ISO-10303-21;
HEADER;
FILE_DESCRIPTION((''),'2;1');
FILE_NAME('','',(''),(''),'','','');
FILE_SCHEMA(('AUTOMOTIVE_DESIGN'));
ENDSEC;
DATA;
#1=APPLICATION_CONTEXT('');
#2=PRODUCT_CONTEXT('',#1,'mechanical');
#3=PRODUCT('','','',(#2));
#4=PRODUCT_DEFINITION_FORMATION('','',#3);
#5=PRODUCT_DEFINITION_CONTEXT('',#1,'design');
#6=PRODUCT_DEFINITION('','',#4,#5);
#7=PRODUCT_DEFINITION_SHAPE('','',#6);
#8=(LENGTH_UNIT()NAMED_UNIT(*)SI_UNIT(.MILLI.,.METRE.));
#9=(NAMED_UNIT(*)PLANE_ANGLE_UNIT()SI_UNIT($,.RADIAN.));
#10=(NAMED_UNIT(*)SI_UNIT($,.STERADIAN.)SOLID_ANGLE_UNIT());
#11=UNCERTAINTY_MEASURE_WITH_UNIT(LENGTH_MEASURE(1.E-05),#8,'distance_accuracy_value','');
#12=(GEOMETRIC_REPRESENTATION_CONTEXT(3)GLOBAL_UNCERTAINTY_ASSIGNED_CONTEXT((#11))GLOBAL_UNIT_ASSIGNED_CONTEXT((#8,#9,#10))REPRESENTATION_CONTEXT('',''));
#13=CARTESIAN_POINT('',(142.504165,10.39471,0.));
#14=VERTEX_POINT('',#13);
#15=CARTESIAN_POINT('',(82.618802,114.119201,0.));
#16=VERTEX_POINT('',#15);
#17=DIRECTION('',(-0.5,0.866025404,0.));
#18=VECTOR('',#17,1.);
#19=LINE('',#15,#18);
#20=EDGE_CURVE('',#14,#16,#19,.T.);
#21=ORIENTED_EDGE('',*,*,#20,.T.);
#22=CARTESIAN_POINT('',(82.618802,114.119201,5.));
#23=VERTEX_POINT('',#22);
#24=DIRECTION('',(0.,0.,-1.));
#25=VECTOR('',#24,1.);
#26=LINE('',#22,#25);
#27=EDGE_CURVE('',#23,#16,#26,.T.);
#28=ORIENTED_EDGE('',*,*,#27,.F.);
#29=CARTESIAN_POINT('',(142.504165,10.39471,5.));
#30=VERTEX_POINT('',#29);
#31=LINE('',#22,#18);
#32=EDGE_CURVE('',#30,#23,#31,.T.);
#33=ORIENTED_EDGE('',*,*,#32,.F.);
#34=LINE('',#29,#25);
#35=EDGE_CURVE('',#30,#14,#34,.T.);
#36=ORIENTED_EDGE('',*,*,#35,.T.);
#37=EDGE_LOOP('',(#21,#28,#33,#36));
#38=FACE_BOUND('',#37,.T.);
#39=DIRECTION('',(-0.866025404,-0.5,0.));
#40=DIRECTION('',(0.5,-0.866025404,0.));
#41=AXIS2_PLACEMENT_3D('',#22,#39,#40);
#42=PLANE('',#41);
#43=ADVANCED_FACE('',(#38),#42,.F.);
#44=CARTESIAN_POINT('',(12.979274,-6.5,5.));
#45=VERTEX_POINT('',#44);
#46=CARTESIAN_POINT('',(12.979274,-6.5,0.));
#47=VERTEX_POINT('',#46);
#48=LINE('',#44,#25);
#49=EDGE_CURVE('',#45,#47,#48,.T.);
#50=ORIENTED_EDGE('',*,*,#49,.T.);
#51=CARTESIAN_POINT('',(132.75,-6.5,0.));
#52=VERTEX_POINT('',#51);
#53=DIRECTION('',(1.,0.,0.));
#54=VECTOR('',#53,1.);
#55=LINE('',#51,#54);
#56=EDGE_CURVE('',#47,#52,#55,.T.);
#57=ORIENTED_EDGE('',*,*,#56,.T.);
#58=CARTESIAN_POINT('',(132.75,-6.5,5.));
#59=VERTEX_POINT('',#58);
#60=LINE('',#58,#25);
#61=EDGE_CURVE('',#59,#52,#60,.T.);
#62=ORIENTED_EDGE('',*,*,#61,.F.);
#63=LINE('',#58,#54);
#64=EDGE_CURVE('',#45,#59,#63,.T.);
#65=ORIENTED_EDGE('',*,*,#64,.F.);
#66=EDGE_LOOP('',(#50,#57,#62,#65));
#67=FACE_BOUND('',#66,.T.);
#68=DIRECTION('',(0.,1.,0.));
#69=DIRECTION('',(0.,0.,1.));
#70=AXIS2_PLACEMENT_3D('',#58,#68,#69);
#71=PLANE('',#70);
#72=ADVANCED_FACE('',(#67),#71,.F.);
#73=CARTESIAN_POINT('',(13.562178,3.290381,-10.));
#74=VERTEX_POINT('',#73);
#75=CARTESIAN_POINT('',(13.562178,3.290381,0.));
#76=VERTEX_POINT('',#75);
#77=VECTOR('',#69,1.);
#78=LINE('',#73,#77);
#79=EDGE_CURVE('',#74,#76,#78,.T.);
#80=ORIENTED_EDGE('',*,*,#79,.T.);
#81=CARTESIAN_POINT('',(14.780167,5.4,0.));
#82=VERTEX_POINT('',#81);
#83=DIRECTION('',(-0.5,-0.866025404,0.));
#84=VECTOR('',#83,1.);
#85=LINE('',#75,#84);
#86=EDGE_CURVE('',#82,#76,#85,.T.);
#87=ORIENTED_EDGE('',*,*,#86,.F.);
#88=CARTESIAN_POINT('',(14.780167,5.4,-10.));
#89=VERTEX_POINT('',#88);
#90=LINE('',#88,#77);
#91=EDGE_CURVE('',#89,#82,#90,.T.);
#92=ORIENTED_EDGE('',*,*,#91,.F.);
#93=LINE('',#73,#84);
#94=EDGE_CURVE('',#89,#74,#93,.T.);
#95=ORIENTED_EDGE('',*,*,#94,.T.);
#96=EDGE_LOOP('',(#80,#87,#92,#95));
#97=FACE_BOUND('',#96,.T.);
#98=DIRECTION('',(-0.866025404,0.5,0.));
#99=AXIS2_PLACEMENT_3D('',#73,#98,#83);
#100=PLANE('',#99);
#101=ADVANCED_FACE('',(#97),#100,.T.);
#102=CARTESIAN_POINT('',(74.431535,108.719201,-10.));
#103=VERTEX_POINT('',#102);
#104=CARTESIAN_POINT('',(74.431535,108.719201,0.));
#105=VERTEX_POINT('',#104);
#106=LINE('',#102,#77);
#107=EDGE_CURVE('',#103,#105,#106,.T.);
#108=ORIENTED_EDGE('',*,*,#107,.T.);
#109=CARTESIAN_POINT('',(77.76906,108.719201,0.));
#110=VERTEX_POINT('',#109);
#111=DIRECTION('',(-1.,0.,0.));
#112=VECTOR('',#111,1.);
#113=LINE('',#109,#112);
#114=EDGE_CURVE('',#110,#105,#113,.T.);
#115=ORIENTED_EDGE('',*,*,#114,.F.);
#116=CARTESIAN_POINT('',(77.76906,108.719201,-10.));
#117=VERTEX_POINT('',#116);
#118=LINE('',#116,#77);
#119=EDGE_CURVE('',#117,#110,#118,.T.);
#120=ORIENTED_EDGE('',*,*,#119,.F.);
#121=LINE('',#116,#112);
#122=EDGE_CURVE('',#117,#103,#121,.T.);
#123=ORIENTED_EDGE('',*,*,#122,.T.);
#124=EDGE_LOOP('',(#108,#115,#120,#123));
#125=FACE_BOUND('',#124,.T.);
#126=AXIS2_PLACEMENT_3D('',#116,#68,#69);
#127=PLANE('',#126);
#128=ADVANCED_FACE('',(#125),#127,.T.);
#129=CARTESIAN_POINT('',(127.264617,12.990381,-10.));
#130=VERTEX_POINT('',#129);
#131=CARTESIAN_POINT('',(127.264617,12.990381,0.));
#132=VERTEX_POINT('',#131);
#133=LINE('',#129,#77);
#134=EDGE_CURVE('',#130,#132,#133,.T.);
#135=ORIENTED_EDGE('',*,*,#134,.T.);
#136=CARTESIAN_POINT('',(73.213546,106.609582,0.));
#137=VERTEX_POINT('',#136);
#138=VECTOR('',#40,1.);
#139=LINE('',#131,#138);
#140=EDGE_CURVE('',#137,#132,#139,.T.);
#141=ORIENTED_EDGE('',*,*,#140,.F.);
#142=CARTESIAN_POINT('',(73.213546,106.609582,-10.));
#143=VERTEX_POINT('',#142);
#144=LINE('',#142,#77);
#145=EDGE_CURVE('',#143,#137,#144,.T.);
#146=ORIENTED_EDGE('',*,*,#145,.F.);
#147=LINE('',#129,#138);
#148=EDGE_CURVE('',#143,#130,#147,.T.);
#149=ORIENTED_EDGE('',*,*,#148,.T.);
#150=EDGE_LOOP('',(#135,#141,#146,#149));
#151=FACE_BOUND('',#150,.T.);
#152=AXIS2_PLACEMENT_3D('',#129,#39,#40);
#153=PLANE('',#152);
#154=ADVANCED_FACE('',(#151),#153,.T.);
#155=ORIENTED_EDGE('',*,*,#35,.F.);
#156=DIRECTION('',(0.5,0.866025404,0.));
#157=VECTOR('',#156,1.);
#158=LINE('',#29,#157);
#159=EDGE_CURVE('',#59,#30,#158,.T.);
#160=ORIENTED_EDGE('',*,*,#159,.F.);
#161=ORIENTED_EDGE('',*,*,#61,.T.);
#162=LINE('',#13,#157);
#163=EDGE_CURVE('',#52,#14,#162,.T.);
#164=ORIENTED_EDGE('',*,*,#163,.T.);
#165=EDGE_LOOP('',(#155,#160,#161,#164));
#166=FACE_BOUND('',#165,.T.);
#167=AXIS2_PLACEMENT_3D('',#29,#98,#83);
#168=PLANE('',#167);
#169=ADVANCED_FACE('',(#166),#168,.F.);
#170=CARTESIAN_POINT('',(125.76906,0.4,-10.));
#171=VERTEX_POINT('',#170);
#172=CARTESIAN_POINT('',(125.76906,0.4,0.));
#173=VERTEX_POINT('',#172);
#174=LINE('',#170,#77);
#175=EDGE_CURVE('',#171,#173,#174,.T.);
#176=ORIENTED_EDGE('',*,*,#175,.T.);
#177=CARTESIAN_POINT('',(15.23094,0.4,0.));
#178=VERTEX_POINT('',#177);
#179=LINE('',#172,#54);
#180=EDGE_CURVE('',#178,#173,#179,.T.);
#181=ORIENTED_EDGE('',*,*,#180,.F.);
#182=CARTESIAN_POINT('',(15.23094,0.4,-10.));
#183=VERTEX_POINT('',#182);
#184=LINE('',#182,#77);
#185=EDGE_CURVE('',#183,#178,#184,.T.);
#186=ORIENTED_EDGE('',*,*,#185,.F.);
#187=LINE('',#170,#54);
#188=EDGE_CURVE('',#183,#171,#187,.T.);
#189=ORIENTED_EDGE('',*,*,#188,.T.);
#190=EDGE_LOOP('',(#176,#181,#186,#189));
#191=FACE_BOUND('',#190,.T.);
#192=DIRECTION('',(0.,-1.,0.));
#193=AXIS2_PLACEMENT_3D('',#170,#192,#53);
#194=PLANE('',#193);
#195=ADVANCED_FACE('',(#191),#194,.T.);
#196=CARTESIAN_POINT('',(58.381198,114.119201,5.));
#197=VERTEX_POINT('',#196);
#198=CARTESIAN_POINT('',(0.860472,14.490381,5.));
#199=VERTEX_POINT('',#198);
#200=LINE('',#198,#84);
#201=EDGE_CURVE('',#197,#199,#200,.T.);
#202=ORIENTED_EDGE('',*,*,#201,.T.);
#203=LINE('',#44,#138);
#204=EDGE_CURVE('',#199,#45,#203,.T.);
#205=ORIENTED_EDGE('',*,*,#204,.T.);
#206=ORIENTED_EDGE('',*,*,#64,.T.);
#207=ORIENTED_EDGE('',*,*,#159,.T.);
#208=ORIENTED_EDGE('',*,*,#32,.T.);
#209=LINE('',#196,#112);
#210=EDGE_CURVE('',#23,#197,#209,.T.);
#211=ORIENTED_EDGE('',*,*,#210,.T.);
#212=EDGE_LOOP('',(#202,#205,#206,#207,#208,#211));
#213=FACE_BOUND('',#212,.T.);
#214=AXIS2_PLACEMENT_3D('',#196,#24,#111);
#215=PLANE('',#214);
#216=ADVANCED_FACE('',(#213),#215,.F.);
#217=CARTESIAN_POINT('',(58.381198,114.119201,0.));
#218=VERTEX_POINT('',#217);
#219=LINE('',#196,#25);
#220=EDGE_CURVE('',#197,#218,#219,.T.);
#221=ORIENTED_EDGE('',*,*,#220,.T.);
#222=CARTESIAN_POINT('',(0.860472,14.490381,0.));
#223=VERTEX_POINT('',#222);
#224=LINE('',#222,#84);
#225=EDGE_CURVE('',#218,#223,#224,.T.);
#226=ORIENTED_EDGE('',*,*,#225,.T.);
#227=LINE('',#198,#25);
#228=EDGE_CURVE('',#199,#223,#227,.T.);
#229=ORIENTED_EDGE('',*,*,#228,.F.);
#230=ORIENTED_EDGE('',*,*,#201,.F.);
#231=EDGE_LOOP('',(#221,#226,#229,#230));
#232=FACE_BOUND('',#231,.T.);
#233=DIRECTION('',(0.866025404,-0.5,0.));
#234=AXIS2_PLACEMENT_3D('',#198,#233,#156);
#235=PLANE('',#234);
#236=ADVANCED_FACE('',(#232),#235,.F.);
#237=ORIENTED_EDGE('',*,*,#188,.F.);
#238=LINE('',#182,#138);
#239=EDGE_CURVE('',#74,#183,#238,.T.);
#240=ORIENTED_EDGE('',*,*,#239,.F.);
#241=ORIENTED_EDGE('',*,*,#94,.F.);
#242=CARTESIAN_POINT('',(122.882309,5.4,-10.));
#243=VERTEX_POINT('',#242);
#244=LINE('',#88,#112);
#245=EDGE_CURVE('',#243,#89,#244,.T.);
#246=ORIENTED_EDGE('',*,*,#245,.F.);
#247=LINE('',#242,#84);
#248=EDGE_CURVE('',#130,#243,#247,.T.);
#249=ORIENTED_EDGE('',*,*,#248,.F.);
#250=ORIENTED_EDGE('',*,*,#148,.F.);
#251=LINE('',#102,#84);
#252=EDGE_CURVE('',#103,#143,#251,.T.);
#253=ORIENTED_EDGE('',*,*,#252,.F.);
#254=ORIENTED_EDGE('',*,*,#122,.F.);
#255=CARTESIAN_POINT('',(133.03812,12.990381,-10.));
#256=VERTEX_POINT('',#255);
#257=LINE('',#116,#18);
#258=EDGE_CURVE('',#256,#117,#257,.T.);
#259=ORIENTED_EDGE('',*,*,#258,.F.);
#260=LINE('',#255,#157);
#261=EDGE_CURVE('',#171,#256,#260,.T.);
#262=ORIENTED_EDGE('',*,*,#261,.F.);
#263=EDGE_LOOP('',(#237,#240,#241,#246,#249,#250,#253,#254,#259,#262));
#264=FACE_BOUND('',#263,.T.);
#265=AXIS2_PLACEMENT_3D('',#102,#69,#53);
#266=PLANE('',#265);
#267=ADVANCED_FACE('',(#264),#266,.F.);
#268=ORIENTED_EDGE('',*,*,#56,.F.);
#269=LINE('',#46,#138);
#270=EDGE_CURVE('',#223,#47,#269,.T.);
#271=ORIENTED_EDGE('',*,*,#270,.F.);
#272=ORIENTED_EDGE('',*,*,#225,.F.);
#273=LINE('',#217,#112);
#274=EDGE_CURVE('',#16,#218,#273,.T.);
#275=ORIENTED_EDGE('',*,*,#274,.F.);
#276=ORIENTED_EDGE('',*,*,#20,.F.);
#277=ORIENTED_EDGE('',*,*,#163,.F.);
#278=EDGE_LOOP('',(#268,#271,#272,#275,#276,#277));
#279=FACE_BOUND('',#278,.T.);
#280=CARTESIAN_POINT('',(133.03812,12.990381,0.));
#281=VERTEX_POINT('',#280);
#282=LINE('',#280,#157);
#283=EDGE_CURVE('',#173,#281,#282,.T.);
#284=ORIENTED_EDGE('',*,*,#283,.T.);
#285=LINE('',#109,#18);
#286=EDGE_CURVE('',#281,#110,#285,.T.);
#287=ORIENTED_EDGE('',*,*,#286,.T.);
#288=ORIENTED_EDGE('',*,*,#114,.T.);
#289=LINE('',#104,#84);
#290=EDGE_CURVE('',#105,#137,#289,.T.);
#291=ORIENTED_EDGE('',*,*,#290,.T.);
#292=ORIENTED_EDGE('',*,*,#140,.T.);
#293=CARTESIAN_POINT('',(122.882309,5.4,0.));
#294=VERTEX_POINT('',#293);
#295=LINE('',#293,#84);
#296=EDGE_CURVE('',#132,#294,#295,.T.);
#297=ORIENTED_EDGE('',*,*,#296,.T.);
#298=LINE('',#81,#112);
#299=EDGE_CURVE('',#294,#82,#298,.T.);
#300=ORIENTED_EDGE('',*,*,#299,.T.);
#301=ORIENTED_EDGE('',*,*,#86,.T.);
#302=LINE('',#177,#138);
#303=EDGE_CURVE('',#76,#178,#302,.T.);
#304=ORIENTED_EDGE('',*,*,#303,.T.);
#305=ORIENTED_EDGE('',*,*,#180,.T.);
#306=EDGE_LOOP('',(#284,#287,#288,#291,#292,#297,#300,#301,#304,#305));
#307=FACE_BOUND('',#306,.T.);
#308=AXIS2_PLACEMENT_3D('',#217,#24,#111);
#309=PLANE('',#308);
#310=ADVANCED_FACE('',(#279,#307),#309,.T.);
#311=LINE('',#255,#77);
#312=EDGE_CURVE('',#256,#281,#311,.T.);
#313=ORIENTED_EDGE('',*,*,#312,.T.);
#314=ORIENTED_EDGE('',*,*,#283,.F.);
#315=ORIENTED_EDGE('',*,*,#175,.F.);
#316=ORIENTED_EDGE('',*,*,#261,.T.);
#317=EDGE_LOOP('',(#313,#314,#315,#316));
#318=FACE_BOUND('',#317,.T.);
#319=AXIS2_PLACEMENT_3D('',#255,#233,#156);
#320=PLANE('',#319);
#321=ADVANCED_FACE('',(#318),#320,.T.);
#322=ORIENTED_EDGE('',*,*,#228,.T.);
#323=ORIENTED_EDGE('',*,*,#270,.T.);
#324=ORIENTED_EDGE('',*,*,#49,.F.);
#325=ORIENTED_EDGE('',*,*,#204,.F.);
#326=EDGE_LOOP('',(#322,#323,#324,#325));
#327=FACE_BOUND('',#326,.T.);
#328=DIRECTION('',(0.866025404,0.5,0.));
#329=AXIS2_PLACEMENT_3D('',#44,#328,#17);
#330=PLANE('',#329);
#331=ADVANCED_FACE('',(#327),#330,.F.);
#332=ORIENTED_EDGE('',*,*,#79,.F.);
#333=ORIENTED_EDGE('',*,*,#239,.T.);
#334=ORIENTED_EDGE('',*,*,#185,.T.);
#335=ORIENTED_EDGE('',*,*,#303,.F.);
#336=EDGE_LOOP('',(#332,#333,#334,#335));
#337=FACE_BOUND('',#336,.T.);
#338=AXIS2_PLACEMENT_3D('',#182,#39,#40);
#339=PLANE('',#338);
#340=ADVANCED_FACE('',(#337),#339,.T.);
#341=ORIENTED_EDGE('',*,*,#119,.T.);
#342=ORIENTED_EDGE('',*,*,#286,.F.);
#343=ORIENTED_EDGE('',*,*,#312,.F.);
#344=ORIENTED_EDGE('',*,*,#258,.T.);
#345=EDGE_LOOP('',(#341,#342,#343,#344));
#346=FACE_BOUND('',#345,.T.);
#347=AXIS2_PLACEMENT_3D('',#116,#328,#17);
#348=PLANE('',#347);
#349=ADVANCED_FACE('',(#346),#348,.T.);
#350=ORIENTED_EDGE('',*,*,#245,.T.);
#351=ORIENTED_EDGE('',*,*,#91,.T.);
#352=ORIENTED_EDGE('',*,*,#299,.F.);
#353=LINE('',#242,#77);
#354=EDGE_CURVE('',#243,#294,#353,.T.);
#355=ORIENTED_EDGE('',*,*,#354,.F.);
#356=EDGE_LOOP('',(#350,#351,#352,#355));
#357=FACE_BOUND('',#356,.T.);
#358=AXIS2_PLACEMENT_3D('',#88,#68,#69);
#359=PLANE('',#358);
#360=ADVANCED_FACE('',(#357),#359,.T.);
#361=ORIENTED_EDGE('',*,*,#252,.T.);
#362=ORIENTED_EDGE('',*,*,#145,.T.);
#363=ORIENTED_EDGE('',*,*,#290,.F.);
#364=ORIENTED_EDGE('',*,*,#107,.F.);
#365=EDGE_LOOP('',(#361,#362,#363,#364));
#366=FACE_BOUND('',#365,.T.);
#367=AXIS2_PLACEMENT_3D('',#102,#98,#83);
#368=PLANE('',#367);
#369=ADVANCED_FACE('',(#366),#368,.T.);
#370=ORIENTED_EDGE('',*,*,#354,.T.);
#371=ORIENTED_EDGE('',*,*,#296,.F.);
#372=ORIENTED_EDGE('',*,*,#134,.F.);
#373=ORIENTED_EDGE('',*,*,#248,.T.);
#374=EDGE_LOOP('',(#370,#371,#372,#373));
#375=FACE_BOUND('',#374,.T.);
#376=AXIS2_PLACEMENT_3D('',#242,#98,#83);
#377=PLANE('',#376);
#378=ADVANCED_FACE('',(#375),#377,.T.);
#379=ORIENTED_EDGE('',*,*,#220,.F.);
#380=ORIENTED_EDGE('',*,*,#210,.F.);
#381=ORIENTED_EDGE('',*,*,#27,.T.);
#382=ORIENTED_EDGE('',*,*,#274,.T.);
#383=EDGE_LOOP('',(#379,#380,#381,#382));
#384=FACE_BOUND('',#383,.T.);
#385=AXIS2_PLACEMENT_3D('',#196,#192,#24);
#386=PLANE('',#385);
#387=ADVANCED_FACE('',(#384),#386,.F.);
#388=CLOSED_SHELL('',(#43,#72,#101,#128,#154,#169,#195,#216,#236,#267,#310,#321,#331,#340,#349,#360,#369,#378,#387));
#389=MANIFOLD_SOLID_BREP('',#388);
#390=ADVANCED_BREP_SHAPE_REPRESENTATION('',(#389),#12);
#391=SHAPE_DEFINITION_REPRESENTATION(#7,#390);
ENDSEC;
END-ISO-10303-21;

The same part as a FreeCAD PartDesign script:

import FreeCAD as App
import Part
import Sketcher
from FreeCAD import Vector
Q = App.Units.Quantity


def add_polygon(sketch, points):
    """Adds a closed chain of lines whose ends are joined by coincident constraints."""
    first, n = sketch.GeometryCount, len(points)
    for a, b in zip(points, points[1:] + points[:1]):
        sketch.addGeometry(Part.LineSegment(App.Vector(*a, 0), App.Vector(*b, 0)), False)
    for i in range(n):
        sketch.addConstraint(Sketcher.Constraint("Coincident", first + i, 2, first + (i + 1) % n, 1))

doc = App.newDocument("Part")
params = doc.addObject("Spreadsheet::Sheet", "Params")
for row, (alias, value) in enumerate([
    ("pad1_length", "10 mm"),
    ("pad2_length", "5 mm"),
], start=1):
    params.set(f"A{row}", alias)
    params.set(f"B{row}", "=" + value)
    params.setAlias(f"B{row}", alias)

body = doc.addObject("PartDesign::Body", "Body")

# Sketch on XY plane
sketch1 = doc.addObject("Sketcher::SketchObject", "Sketch")
body.addObject(sketch1)
sketch1.AttachmentSupport = (doc.XY_Plane, [""])
sketch1.MapMode = "FlatFace"
add_polygon(sketch1, [(133, 13), (77.8, 108.7), (74.4, 108.7), (73.2, 106.6), (127.3, 13), (122.9, 5.4), (14.8, 5.4), (13.6, 3.3), (15.2, 0.4), (125.8, 0.4)])  # lines 0-9
sketch1.addConstraint(Sketcher.Constraint("Horizontal", 1))
sketch1.addConstraint(Sketcher.Constraint("Horizontal", 5))
sketch1.addConstraint(Sketcher.Constraint("Horizontal", 8))
sketch1.addConstraint(Sketcher.Constraint("Parallel", 0, 3))
sketch1.addConstraint(Sketcher.Constraint("Parallel", 2, 4))
sketch1.addConstraint(Sketcher.Constraint("Parallel", 4, 6))
sketch1.addConstraint(Sketcher.Constraint("Parallel", 3, 7))
sketch1.addConstraint(Sketcher.Constraint("Parallel", 6, 9))
sketch1.addConstraint(Sketcher.Constraint("Horizontal", 3, 2, 9, 2))
sketch1.addConstraint(Sketcher.Constraint("Equal", 2, 6))
sketch1.addConstraint(Sketcher.Constraint("Angle", 0, Q("120 deg")))
sketch1.addConstraint(Sketcher.Constraint("Angle", 2, Q("-120 deg")))
sketch1.addConstraint(Sketcher.Constraint("DistanceY", 7, 2, 5, 2, Q("5 mm")))
sketch1.addConstraint(Sketcher.Constraint("DistanceY", -1, 1, 4, 2, Q("5.4 mm")))
sketch1.addConstraint(Sketcher.Constraint("DistanceY", 6, 2, 3, 2, Q("9.7 mm")))
sketch1.addConstraint(Sketcher.Constraint("DistanceX", 5, 2, 5, 1, Q("108.102142 mm")))
sketch1.addConstraint(Sketcher.Constraint("DistanceX", 8, 1, 8, 2, Q("110.53812 mm")))
sketch1.addConstraint(Sketcher.Constraint("DistanceY", -1, 1, 0, 2, Q("108.719201 mm")))
sketch1.addConstraint(Sketcher.Constraint("Distance", 0, Q("110.53812 mm")))
sketch1.addConstraint(Sketcher.Constraint("DistanceX", -1, 1, 0, 2, Q("77.76906 mm")))
pad1 = doc.addObject("PartDesign::Pad", "Pad")
body.addObject(pad1)
pad1.Profile = sketch1
pad1.setExpression("Length", "Params.pad1_length")
pad1.Reversed = True

# Sketch on XY plane
sketch2 = doc.addObject("Sketcher::SketchObject", "Sketch001")
body.addObject(sketch2)
sketch2.AttachmentSupport = (doc.XY_Plane, [""])
sketch2.MapMode = "FlatFace"
add_polygon(sketch2, [(83, 114), (58, 114), (1, 14), (13, -6), (133, -6), (143, 10)])  # lines 0-5
sketch2.addConstraint(Sketcher.Constraint("Horizontal", 0))
sketch2.addConstraint(Sketcher.Constraint("Horizontal", 3))
sketch2.addConstraint(Sketcher.Constraint("Parallel", 1, 4))
sketch2.addConstraint(Sketcher.Constraint("Parallel", 2, 5))
sketch2.addConstraint(Sketcher.Constraint("Angle", 1, Q("-120 deg")))
sketch2.addConstraint(Sketcher.Constraint("Angle", 2, Q("-60 deg")))
sketch2.addConstraint(Sketcher.Constraint("DistanceY", 2, 2, -1, 1, Q("6.5 mm")))
sketch2.addConstraint(Sketcher.Constraint("DistanceX", -1, 1, 3, 2, Q("132.75 mm")))
sketch2.addConstraint(Sketcher.Constraint("DistanceY", -1, 1, 0, 2, Q("114.119201 mm")))
sketch2.addConstraint(Sketcher.Constraint("Distance", 1, Q("115.041452 mm")))
sketch2.addConstraint(Sketcher.Constraint("Distance", 4, Q("19.50833 mm")))
sketch2.addConstraint(Sketcher.Constraint("DistanceX", 0, 2, 0, 1, Q("24.237604 mm")))
pad2 = doc.addObject("PartDesign::Pad", "Pad001")
body.addObject(pad2)
pad2.Profile = sketch2
pad2.setExpression("Length", "Params.pad2_length")

doc.recompute()
